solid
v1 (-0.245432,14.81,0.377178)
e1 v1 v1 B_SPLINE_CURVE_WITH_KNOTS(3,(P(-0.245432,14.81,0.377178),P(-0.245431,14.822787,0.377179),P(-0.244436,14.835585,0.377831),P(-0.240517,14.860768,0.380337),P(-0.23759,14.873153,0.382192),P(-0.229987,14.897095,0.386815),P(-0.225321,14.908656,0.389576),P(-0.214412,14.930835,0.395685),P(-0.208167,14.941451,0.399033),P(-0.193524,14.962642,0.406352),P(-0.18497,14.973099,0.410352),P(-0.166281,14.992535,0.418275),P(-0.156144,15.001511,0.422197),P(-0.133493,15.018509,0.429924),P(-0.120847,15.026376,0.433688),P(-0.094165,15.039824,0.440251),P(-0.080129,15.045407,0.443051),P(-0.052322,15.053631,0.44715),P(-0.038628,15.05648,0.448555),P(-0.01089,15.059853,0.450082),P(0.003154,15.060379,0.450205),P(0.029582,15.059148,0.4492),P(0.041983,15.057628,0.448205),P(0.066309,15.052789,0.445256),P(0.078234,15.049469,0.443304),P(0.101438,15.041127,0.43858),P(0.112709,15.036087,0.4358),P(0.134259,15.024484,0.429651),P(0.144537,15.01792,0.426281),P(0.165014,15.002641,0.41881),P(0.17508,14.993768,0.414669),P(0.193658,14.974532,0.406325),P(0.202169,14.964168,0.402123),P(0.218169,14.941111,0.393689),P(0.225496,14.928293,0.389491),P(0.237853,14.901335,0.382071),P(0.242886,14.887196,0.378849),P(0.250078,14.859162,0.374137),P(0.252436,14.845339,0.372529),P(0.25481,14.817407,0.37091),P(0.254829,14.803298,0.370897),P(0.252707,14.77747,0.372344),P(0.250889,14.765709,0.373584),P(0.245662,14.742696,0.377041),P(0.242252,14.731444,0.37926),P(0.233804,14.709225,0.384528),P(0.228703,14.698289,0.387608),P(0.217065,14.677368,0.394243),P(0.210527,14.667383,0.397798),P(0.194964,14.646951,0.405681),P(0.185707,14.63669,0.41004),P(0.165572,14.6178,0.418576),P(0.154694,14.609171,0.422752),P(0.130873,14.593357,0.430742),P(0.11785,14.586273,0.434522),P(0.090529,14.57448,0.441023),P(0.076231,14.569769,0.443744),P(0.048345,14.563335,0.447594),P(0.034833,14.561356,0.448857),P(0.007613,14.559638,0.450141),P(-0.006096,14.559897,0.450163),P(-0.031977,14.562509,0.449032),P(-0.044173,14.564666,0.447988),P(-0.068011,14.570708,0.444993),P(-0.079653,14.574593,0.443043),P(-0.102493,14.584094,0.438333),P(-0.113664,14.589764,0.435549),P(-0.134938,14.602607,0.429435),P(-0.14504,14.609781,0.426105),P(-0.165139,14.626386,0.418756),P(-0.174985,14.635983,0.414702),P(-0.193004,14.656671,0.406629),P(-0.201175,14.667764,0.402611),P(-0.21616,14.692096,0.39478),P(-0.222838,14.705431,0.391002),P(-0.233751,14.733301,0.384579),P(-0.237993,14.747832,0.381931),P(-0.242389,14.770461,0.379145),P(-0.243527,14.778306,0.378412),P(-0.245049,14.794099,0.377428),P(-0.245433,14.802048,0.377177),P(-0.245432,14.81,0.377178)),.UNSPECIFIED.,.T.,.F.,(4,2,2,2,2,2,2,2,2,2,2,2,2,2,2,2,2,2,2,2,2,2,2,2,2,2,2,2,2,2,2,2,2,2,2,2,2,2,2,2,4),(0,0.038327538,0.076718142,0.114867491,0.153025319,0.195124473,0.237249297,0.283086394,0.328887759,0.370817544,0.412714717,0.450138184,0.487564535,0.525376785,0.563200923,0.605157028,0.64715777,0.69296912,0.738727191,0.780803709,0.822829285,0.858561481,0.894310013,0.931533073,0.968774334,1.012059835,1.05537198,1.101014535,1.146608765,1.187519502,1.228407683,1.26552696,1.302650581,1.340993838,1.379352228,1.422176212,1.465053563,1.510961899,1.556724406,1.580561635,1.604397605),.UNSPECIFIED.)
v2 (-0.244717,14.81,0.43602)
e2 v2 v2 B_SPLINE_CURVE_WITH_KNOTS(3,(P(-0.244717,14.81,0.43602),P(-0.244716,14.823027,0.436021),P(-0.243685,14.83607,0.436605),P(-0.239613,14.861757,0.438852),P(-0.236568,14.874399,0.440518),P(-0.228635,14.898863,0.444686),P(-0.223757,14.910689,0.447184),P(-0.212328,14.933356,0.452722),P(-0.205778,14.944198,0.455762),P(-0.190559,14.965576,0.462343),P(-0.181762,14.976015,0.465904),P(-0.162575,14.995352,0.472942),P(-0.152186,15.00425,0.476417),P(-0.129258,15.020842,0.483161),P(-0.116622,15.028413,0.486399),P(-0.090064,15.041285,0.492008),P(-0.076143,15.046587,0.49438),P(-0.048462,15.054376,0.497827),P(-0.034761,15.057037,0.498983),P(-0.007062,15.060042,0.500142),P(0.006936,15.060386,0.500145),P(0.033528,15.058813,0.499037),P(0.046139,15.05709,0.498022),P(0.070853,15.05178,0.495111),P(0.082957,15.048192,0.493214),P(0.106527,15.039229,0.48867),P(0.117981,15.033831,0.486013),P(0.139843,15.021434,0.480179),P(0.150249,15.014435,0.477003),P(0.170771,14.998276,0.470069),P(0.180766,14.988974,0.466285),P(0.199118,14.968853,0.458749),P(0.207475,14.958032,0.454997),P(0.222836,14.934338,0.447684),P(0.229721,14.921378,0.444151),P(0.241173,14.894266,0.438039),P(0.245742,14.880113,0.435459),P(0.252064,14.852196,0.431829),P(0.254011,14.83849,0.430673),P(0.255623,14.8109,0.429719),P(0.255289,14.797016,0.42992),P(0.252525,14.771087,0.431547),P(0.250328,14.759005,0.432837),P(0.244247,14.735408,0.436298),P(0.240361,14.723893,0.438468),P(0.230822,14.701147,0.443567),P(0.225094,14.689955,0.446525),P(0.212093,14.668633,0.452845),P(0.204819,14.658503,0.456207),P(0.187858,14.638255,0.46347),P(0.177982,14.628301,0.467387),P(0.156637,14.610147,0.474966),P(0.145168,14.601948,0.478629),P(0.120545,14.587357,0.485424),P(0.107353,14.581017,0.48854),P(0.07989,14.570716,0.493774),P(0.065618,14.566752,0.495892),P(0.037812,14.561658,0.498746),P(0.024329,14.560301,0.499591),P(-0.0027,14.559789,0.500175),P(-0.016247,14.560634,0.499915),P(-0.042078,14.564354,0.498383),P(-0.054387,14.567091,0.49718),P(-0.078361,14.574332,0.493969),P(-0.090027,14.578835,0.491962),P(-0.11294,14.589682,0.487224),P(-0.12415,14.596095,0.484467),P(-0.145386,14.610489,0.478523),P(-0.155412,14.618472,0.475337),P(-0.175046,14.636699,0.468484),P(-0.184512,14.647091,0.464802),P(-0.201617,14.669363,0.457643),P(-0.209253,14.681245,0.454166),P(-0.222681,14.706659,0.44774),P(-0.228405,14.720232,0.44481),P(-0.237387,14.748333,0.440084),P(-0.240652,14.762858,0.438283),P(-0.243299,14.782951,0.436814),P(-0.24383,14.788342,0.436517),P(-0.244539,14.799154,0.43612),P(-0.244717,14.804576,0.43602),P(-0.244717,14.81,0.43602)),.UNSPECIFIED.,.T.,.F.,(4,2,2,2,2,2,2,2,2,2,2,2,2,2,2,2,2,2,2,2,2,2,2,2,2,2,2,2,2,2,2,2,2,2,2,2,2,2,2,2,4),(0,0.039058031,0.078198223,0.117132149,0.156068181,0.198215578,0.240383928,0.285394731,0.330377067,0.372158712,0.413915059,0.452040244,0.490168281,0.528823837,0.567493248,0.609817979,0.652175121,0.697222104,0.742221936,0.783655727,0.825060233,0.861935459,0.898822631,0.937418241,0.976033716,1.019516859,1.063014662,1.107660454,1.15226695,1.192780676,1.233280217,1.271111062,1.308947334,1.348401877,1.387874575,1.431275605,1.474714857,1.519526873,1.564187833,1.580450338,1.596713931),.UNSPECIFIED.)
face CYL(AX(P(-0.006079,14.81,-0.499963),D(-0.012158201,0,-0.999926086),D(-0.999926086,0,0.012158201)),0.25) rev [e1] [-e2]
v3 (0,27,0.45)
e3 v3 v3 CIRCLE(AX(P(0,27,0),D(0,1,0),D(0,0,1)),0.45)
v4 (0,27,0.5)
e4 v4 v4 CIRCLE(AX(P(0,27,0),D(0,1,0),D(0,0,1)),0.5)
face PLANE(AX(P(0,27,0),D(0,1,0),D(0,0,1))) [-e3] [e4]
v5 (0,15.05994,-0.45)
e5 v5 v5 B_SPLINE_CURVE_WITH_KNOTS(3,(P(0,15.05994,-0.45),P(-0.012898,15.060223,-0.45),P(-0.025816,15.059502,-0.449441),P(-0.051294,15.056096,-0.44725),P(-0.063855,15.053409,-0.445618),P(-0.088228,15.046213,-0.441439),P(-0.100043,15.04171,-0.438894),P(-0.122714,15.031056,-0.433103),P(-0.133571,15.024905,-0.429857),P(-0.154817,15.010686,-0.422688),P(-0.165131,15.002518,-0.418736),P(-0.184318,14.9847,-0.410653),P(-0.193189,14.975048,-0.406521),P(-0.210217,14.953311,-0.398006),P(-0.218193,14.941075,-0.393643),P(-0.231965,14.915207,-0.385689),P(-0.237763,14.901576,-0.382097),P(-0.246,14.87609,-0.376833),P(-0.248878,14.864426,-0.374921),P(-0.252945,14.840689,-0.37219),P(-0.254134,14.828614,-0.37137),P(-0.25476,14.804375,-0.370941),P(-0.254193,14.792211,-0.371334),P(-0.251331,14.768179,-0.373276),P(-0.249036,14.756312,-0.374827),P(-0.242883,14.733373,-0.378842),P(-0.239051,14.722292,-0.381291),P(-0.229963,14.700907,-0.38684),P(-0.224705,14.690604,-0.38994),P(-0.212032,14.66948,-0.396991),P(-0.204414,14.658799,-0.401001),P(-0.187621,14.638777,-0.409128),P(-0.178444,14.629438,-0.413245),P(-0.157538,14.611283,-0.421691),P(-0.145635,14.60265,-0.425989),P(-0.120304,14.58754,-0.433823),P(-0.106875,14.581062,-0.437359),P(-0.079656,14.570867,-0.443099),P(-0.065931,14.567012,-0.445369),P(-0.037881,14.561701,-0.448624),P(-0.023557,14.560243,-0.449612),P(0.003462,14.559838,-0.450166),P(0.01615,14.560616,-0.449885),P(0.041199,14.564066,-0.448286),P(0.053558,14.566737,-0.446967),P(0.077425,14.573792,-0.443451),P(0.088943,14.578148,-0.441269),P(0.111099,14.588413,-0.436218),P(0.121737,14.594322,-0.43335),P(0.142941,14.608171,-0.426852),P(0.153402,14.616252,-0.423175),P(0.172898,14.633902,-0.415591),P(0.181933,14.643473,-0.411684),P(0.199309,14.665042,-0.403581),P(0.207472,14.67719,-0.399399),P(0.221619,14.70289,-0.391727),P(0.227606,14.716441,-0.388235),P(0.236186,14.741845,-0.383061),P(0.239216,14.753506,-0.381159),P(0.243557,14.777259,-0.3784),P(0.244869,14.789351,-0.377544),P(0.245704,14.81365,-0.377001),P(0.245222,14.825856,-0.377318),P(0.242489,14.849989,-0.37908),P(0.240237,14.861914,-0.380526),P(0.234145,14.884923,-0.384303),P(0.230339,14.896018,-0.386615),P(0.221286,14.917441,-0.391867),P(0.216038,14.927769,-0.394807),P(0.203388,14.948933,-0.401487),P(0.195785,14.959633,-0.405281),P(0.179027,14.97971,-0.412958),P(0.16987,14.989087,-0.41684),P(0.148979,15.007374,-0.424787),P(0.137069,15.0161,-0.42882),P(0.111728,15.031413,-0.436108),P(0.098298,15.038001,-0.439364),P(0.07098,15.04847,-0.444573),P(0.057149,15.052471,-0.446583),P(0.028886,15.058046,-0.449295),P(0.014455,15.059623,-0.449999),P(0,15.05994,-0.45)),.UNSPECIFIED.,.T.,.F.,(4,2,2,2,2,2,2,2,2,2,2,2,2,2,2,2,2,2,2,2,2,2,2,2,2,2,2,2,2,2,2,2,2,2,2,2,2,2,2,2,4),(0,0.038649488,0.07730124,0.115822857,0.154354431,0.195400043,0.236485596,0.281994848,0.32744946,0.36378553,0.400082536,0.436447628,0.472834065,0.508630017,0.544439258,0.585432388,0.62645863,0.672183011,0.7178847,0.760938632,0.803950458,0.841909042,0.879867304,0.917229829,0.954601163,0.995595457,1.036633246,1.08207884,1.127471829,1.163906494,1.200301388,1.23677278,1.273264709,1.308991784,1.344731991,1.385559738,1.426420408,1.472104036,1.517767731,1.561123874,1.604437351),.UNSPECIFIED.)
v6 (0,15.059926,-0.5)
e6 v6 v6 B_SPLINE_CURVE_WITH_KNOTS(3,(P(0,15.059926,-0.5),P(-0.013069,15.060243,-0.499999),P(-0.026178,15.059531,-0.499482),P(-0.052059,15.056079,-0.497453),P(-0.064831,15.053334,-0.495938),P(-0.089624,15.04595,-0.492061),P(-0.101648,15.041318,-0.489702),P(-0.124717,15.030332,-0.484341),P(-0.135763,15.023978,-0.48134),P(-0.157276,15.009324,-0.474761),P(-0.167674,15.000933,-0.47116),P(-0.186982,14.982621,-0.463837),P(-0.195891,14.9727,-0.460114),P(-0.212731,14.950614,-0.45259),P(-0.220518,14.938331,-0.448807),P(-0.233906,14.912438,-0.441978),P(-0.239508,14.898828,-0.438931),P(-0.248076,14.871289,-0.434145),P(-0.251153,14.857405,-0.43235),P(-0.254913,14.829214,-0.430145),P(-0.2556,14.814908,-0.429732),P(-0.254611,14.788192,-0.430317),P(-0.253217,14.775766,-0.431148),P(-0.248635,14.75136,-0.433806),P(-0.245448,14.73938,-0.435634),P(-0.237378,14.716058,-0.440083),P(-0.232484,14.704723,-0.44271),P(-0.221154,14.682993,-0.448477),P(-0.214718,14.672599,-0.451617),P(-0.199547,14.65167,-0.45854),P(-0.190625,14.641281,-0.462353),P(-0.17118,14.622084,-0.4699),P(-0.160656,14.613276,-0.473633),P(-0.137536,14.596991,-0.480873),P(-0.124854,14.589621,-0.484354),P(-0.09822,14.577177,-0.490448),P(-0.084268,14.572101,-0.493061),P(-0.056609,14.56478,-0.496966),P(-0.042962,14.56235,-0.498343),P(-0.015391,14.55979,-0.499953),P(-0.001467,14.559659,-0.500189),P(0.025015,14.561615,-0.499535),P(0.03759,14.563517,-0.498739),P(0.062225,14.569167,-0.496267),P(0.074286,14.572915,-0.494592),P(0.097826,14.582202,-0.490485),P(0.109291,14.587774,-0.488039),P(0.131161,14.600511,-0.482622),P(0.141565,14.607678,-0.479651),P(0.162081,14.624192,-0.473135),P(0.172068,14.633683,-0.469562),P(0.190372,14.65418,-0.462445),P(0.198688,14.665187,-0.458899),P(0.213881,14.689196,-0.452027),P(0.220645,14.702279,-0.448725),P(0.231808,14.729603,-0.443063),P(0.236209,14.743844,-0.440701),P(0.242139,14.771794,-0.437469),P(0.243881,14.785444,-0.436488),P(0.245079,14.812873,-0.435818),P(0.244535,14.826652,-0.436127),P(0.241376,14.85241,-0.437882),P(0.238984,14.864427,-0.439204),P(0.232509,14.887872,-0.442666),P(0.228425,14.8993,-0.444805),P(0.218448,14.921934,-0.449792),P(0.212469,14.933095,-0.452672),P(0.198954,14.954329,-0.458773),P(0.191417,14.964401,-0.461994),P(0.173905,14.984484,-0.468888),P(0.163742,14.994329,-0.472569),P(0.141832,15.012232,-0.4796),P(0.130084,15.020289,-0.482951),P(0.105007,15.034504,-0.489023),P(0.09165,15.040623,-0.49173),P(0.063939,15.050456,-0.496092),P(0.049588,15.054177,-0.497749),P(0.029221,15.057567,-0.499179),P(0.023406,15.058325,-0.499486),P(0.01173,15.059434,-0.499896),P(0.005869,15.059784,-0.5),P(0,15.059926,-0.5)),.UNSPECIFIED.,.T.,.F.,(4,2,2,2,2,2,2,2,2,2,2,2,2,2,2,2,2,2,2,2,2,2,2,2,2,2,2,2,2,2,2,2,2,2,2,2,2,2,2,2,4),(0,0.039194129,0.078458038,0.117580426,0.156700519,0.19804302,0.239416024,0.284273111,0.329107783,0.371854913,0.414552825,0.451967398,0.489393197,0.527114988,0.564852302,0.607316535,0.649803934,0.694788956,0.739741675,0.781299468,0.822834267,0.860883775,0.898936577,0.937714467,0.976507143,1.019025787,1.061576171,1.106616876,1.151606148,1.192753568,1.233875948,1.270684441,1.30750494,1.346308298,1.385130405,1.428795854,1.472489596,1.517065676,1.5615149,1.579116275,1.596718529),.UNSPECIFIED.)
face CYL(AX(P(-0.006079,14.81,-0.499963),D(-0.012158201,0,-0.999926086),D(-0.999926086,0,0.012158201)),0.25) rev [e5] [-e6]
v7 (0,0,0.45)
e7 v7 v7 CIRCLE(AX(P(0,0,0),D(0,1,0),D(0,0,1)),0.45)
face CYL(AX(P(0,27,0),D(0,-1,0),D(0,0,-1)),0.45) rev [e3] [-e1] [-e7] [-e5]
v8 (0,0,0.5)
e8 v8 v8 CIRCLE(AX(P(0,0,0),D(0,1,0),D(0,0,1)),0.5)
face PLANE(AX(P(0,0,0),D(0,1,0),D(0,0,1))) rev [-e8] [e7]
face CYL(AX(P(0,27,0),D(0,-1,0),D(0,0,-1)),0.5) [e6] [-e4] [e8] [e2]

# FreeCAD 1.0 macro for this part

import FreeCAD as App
import Part
import Sketcher

V = App.Vector
Q = App.Units.Quantity

doc = App.newDocument("Part")
body = doc.addObject("PartDesign::Body", "Body")

sketch1 = body.newObject("Sketcher::SketchObject", "Sketch")
sketch1.AttachmentSupport = (doc.getObject("XZ_Plane"), [""])
sketch1.MapMode = "FlatFace"
sketch1.addGeometry(Part.Circle(V(0, 0, 0), V(0, 0, 1), 0.5), False)
sketch1.addGeometry(Part.Circle(V(0, 0, 0), V(0, 0, 1), 0.45), False)
sketch1.addConstraint(Sketcher.Constraint("Coincident", 0, 3, -1, 1))
sketch1.addConstraint(Sketcher.Constraint("Coincident", 1, 3, -1, 1))
sketch1.addConstraint(Sketcher.Constraint("Diameter", 0, Q("1 mm")))
sketch1.addConstraint(Sketcher.Constraint("Diameter", 1, Q("0.9 mm")))
pad1 = body.newObject("PartDesign::Pad", "Pad")
pad1.Profile = sketch1
pad1.Length = 27
pad1.Reversed = True

sketch2 = body.newObject("Sketcher::SketchObject", "Sketch001")
sketch2.Placement = App.Placement(V(-0.006079, 0, -0.499963), App.Rotation(V(-0.999926086, 0, 0.012158201), V(0, 0.999999999, 0), V(-0.012158201, 0, -0.999926086), "ZXY"))
sketch2.addGeometry(Part.Circle(V(0, 14.81, 0), V(0, 0, 1), 0.25), False)
sketch2.addConstraint(Sketcher.Constraint("PointOnObject", 0, 3, -2))
sketch2.addConstraint(Sketcher.Constraint("Diameter", 0, Q("0.5 mm")))
sketch2.addConstraint(Sketcher.Constraint("DistanceY", -1, 1, 0, 3, Q("14.81 mm")))
doc.recompute()
hole = body.newObject("PartDesign::Hole", "Hole")
hole.Profile = sketch2
hole.ThreadType = "None"
hole.Diameter = 0.5
hole.DepthType = "ThroughAll"

doc.recompute()
